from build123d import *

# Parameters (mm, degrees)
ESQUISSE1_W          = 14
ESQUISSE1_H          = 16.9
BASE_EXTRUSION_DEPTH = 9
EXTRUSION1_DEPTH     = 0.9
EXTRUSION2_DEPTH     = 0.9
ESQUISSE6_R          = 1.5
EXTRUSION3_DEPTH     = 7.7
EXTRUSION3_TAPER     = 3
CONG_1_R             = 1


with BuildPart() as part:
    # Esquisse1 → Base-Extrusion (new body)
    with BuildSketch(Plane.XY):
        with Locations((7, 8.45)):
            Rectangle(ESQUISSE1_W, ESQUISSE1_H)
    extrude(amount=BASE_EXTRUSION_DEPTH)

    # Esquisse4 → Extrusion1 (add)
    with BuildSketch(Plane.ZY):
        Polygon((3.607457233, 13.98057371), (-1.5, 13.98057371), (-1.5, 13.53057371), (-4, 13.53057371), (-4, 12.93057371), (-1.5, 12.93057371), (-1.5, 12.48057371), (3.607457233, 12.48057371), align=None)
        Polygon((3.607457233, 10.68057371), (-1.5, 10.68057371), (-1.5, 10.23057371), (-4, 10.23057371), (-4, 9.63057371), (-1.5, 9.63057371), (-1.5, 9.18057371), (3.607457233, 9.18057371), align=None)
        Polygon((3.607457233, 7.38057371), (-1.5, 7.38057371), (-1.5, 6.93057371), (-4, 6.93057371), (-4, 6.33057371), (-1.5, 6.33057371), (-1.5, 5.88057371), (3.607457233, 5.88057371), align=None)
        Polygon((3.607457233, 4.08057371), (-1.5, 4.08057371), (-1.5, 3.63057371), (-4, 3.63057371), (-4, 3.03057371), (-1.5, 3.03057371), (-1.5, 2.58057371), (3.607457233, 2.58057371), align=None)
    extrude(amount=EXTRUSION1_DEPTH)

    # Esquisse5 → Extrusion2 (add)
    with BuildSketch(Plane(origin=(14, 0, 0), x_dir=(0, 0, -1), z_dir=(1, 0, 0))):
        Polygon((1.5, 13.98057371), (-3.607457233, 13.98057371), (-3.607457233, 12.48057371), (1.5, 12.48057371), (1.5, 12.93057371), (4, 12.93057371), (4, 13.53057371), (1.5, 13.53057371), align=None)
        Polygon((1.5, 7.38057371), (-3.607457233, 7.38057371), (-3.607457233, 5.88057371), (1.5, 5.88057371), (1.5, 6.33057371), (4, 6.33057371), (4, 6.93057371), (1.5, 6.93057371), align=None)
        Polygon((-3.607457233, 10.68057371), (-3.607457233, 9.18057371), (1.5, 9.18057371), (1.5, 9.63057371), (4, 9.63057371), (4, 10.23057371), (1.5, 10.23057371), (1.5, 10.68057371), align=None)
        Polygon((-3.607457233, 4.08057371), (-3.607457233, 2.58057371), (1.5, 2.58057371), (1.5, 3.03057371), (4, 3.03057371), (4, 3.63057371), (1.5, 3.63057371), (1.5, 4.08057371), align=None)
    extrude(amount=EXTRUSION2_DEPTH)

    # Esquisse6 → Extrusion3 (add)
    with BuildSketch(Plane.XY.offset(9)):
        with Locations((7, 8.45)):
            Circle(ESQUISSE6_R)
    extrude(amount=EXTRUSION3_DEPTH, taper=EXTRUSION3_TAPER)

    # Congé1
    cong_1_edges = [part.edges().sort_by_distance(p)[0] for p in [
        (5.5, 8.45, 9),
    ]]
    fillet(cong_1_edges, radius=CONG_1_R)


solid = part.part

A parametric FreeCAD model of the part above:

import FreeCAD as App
import Part
import Sketcher


def edges_at(feature, points):
    """Names of the edges that pass closest to the given points."""
    edges = feature.Shape.Edges
    near = lambda p: min(range(len(edges)), key=lambda i: edges[i].distToShape(Part.Vertex(*p))[0])
    return sorted({f"Edge{near(p) + 1}" for p in points})


def add_polygon(sketch, points):
    """Adds a closed chain of lines whose ends are joined by coincident constraints."""
    first, n = sketch.GeometryCount, len(points)
    for a, b in zip(points, points[1:] + points[:1]):
        sketch.addGeometry(Part.LineSegment(App.Vector(*a, 0), App.Vector(*b, 0)), False)
    for i in range(n):
        sketch.addConstraint(Sketcher.Constraint("Coincident", first + i, 2, first + (i + 1) % n, 1))

doc = App.newDocument("Part")
body = doc.addObject("PartDesign::Body", "Body")

sketch1 = doc.addObject("Sketcher::SketchObject", "Sketch")
body.addObject(sketch1)
sketch1.AttachmentSupport = (doc.XY_Plane, [""])
sketch1.MapMode = "FlatFace"
add_polygon(sketch1, [(0, 17), (0, 0), (14, 0), (14, 17)])
sketch1.addConstraint([
    Sketcher.Constraint("Vertical", 0),
    Sketcher.Constraint("Horizontal", 1),
    Sketcher.Constraint("Vertical", 2),
    Sketcher.Constraint("Horizontal", 3),
    Sketcher.Constraint("Coincident", 0, 2, -1, 1),
    Sketcher.Constraint("DistanceX", 1, 1, 1, 2, 14.0),
    Sketcher.Constraint("DistanceY", 0, 2, 0, 1, 16.9),
])
pad1 = doc.addObject("PartDesign::Pad", "Pad")
body.addObject(pad1)
pad1.Profile = sketch1
pad1.Length = 9

sketch2 = doc.addObject("Sketcher::SketchObject", "Sketch001")
body.addObject(sketch2)
sketch2.AttachmentSupport = (doc.YZ_Plane, [""])
sketch2.MapMode = "FlatFace"
add_polygon(sketch2, [(13.98, 3.61), (13.98, -1.5), (13.53, -1.5), (13.53, -4), (12.93, -4), (12.93, -1.5), (12.48, -1.5), (12.48, 3.61)])
add_polygon(sketch2, [(10.68, 3.61), (10.68, -1.5), (10.23, -1.5), (10.23, -4), (9.63, -4), (9.63, -1.5), (9.18, -1.5), (9.18, 3.61)])
add_polygon(sketch2, [(7.38, 3.61), (7.38, -1.5), (6.93, -1.5), (6.93, -4), (6.33, -4), (6.33, -1.5), (5.88, -1.5), (5.88, 3.61)])
add_polygon(sketch2, [(4.08, 3.61), (4.08, -1.5), (3.63, -1.5), (3.63, -4), (3.03, -4), (3.03, -1.5), (2.58, -1.5), (2.58, 3.61)])
sketch2.addConstraint([
    Sketcher.Constraint("Vertical", 0),
    Sketcher.Constraint("Horizontal", 1),
    Sketcher.Constraint("Vertical", 2),
    Sketcher.Constraint("Horizontal", 3),
    Sketcher.Constraint("Vertical", 4),
    Sketcher.Constraint("Horizontal", 5),
    Sketcher.Constraint("Vertical", 6),
    Sketcher.Constraint("Horizontal", 7),
    Sketcher.Constraint("Vertical", 8),
    Sketcher.Constraint("Horizontal", 9),
    Sketcher.Constraint("Vertical", 10),
    Sketcher.Constraint("Horizontal", 11),
    Sketcher.Constraint("Vertical", 12),
    Sketcher.Constraint("Horizontal", 13),
    Sketcher.Constraint("Vertical", 14),
    Sketcher.Constraint("Horizontal", 15),
    Sketcher.Constraint("Vertical", 16),
    Sketcher.Constraint("Horizontal", 17),
    Sketcher.Constraint("Vertical", 18),
    Sketcher.Constraint("Horizontal", 19),
    Sketcher.Constraint("Vertical", 20),
    Sketcher.Constraint("Horizontal", 21),
    Sketcher.Constraint("Vertical", 22),
    Sketcher.Constraint("Horizontal", 23),
    Sketcher.Constraint("Vertical", 24),
    Sketcher.Constraint("Horizontal", 25),
    Sketcher.Constraint("Vertical", 26),
    Sketcher.Constraint("Horizontal", 27),
    Sketcher.Constraint("Vertical", 28),
    Sketcher.Constraint("Horizontal", 29),
    Sketcher.Constraint("Vertical", 30),
    Sketcher.Constraint("Horizontal", 31),
    Sketcher.Constraint("Horizontal", 1, 2, 4, 2),
    Sketcher.Constraint("Horizontal", 5, 2, 8, 2),
    Sketcher.Constraint("Horizontal", 3, 2, 10, 2),
    Sketcher.Constraint("Horizontal", 9, 2, 12, 2),
    Sketcher.Constraint("Horizontal", 7, 2, 14, 2),
    Sketcher.Constraint("Horizontal", 13, 2, 16, 2),
    Sketcher.Constraint("Horizontal", 11, 2, 18, 2),
    Sketcher.Constraint("Horizontal", 17, 2, 20, 2),
    Sketcher.Constraint("Horizontal", 15, 2, 22, 2),
    Sketcher.Constraint("Horizontal", 21, 2, 24, 2),
    Sketcher.Constraint("Horizontal", 19, 2, 26, 2),
    Sketcher.Constraint("Horizontal", 25, 2, 28, 2),
    Sketcher.Constraint("Horizontal", 23, 2, 30, 2),
    Sketcher.Constraint("Equal", 1, 5),
    Sketcher.Constraint("Equal", 5, 9),
    Sketcher.Constraint("Equal", 3, 11),
    Sketcher.Constraint("Equal", 9, 13),
    Sketcher.Constraint("Equal", 13, 17),
    Sketcher.Constraint("Equal", 11, 19),
    Sketcher.Constraint("Equal", 17, 21),
    Sketcher.Constraint("Equal", 21, 25),
    Sketcher.Constraint("Equal", 19, 27),
    Sketcher.Constraint("Equal", 25, 29),
    Sketcher.Constraint("DistanceX", 3, 2, 3, 1, 0.6),
    Sketcher.Constraint("DistanceX", 7, 1, 7, 2, 1.5),
    Sketcher.Constraint("DistanceY", 2, 2, 2, 1, 2.5),
    Sketcher.Constraint("DistanceY", 2, 2, -1, 1, 4.0),
    Sketcher.Constraint("DistanceX", 8, 2, 5, 2, 1.8),
    Sketcher.Constraint("DistanceX", 16, 2, 13, 2, 1.8),
    Sketcher.Constraint("DistanceX", 24, 2, 21, 2, 1.8),
    Sketcher.Constraint("DistanceY", 0, 2, 0, 1, 5.107457),
    Sketcher.Constraint("DistanceX", -1, 1, 0, 2, 13.980574),
])
pad2 = doc.addObject("PartDesign::Pad", "Pad001")
body.addObject(pad2)
pad2.Profile = sketch2
pad2.Length = 0.9
pad2.Reversed = True

sketch3 = doc.addObject("Sketcher::SketchObject", "Sketch002")
body.addObject(sketch3)
sketch3.AttachmentSupport = (doc.YZ_Plane, [""])
sketch3.MapMode = "FlatFace"
sketch3.AttachmentOffset = App.Placement(App.Vector(0, 0, 14), App.Rotation())
add_polygon(sketch3, [(13.98, -1.5), (13.98, 3.61), (12.48, 3.61), (12.48, -1.5), (12.93, -1.5), (12.93, -4), (13.53, -4), (13.53, -1.5)])
add_polygon(sketch3, [(7.38, -1.5), (7.38, 3.61), (5.88, 3.61), (5.88, -1.5), (6.33, -1.5), (6.33, -4), (6.93, -4), (6.93, -1.5)])
add_polygon(sketch3, [(10.68, 3.61), (9.18, 3.61), (9.18, -1.5), (9.63, -1.5), (9.63, -4), (10.23, -4), (10.23, -1.5), (10.68, -1.5)])
add_polygon(sketch3, [(4.08, 3.61), (2.58, 3.61), (2.58, -1.5), (3.03, -1.5), (3.03, -4), (3.63, -4), (3.63, -1.5), (4.08, -1.5)])
sketch3.addConstraint([
    Sketcher.Constraint("Vertical", 0),
    Sketcher.Constraint("Horizontal", 1),
    Sketcher.Constraint("Vertical", 2),
    Sketcher.Constraint("Horizontal", 3),
    Sketcher.Constraint("Vertical", 4),
    Sketcher.Constraint("Horizontal", 5),
    Sketcher.Constraint("Vertical", 6),
    Sketcher.Constraint("Horizontal", 7),
    Sketcher.Constraint("Vertical", 8),
    Sketcher.Constraint("Horizontal", 9),
    Sketcher.Constraint("Vertical", 10),
    Sketcher.Constraint("Horizontal", 11),
    Sketcher.Constraint("Vertical", 12),
    Sketcher.Constraint("Horizontal", 13),
    Sketcher.Constraint("Vertical", 14),
    Sketcher.Constraint("Horizontal", 15),
    Sketcher.Constraint("Horizontal", 16),
    Sketcher.Constraint("Vertical", 17),
    Sketcher.Constraint("Horizontal", 18),
    Sketcher.Constraint("Vertical", 19),
    Sketcher.Constraint("Horizontal", 20),
    Sketcher.Constraint("Vertical", 21),
    Sketcher.Constraint("Horizontal", 22),
    Sketcher.Constraint("Vertical", 23),
    Sketcher.Constraint("Horizontal", 24),
    Sketcher.Constraint("Vertical", 25),
    Sketcher.Constraint("Horizontal", 26),
    Sketcher.Constraint("Vertical", 27),
    Sketcher.Constraint("Horizontal", 28),
    Sketcher.Constraint("Vertical", 29),
    Sketcher.Constraint("Horizontal", 30),
    Sketcher.Constraint("Vertical", 31),
    Sketcher.Constraint("Horizontal", 3, 2, 6, 2),
    Sketcher.Constraint("Horizontal", 1, 2, 8, 2),
    Sketcher.Constraint("Horizontal", 7, 2, 10, 2),
    Sketcher.Constraint("Horizontal", 5, 2, 12, 2),
    Sketcher.Constraint("Horizontal", 11, 2, 14, 2),
    Sketcher.Constraint("Horizontal", 9, 2, 16, 2),
    Sketcher.Constraint("Horizontal", 15, 2, 17, 2),
    Sketcher.Constraint("Horizontal", 13, 2, 19, 2),
    Sketcher.Constraint("Horizontal", 18, 2, 21, 2),
    Sketcher.Constraint("Horizontal", 23, 2, 24, 2),
    Sketcher.Constraint("Horizontal", 22, 2, 25, 2),
    Sketcher.Constraint("Horizontal", 20, 2, 27, 2),
    Sketcher.Constraint("Horizontal", 26, 2, 29, 2),
    Sketcher.Constraint("Equal", 3, 7),
    Sketcher.Constraint("Equal", 1, 9),
    Sketcher.Constraint("Equal", 7, 11),
    Sketcher.Constraint("Equal", 5, 13),
    Sketcher.Constraint("Equal", 9, 16),
    Sketcher.Constraint("Equal", 15, 18),
    Sketcher.Constraint("Equal", 13, 20),
    Sketcher.Constraint("Equal", 16, 24),
    Sketcher.Constraint("Equal", 22, 26),
    Sketcher.Constraint("Equal", 20, 28),
    Sketcher.Constraint("DistanceX", 1, 2, 1, 1, 1.5),
    Sketcher.Constraint("DistanceX", 5, 1, 5, 2, 0.6),
    Sketcher.Constraint("DistanceY", 4, 2, 4, 1, 2.5),
    Sketcher.Constraint("DistanceY", 4, 2, -1, 1, 4.0),
    Sketcher.Constraint("DistanceX", 13, 2, 4, 2, 6.0),
    Sketcher.Constraint("DistanceX", 8, 2, 16, 2, 1.8),
    Sketcher.Constraint("DistanceX", 24, 2, 9, 2, 3.3),
    Sketcher.Constraint("DistanceY", 0, 1, 0, 2, 5.107457),
    Sketcher.Constraint("DistanceX", -1, 1, 0, 2, 13.980574),
])
pad3 = doc.addObject("PartDesign::Pad", "Pad002")
body.addObject(pad3)
pad3.Profile = sketch3
pad3.Length = 0.9

sketch4 = doc.addObject("Sketcher::SketchObject", "Sketch003")
body.addObject(sketch4)
sketch4.AttachmentSupport = (doc.XY_Plane, [""])
sketch4.MapMode = "FlatFace"
sketch4.AttachmentOffset = App.Placement(App.Vector(0, 0, 9), App.Rotation())
sketch4.addGeometry(Part.Circle(App.Vector(7, 8.4, 0), App.Vector(0, 0, 1), 1.5), False)
sketch4.addConstraint([
    Sketcher.Constraint("Diameter", 0, 3.0),
    Sketcher.Constraint("DistanceX", -1, 1, 0, 3, 7.0),
    Sketcher.Constraint("DistanceY", -1, 1, 0, 3, 8.45),
])
pad4 = doc.addObject("PartDesign::Pad", "Pad003")
body.addObject(pad4)
pad4.Profile = sketch4
pad4.Length = 7.7
pad4.TaperAngle = -3
doc.recompute()

fillet = doc.addObject("PartDesign::Fillet", "Fillet")
body.addObject(fillet)
fillet.Base = (pad4, edges_at(pad4, [(5.5, 8.45, 9)]))
fillet.Radius = 1

doc.recompute()
